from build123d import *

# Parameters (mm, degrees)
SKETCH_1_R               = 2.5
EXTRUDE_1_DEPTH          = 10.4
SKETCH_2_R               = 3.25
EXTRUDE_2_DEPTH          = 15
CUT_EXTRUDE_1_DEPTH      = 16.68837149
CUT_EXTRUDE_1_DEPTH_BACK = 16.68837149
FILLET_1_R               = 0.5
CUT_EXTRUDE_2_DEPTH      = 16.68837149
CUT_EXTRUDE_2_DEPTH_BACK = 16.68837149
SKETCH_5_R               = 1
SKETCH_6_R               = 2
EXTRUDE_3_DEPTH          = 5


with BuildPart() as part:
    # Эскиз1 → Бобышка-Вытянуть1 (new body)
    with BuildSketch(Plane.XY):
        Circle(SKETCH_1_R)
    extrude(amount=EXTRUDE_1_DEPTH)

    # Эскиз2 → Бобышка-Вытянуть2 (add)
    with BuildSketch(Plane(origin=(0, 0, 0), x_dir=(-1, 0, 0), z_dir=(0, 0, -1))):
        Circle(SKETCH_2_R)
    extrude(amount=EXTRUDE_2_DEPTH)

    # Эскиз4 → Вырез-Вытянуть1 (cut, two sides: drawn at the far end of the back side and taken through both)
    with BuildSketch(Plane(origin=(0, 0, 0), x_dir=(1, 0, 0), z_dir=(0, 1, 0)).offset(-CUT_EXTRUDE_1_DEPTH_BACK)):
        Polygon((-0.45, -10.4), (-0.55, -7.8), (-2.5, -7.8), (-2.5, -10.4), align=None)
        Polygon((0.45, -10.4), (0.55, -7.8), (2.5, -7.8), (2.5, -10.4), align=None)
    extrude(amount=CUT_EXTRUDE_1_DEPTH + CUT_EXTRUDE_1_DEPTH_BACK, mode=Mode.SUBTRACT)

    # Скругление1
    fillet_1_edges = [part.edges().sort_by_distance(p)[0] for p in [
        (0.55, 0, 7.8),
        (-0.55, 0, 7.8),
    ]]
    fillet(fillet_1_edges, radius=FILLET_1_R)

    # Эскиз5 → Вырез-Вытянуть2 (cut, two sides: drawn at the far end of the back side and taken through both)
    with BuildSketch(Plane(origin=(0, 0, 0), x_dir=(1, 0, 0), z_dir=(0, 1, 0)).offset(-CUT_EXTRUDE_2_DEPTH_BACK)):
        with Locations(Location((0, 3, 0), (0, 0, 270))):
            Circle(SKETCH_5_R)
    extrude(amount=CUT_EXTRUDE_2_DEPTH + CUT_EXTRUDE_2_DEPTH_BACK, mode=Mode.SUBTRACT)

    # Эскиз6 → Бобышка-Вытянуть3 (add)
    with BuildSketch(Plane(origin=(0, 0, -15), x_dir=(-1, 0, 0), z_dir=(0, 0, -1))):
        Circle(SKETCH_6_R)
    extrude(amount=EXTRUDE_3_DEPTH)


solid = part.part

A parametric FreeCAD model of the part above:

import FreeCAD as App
import Part
import Sketcher
Q = App.Units.Quantity


def edges_at(feature, points):
    """Names of the edges that pass closest to the given points."""
    edges = feature.Shape.Edges
    near = lambda p: min(range(len(edges)), key=lambda i: edges[i].distToShape(Part.Vertex(*p))[0])
    return sorted({f"Edge{near(p) + 1}" for p in points})


def add_polygon(sketch, points):
    """Adds a closed chain of lines whose ends are joined by coincident constraints."""
    first, n = sketch.GeometryCount, len(points)
    for a, b in zip(points, points[1:] + points[:1]):
        sketch.addGeometry(Part.LineSegment(App.Vector(*a, 0), App.Vector(*b, 0)), False)
    for i in range(n):
        sketch.addConstraint(Sketcher.Constraint("Coincident", first + i, 2, first + (i + 1) % n, 1))

doc = App.newDocument("Part")
body = doc.addObject("PartDesign::Body", "Body")

sketch1 = body.newObject("Sketcher::SketchObject", "Sketch")
sketch1.AttachmentSupport = (doc.getObject("XY_Plane"), [""])
sketch1.MapMode = "FlatFace"
sketch1.addGeometry(Part.Circle(App.Vector(0, 0, 0), App.Vector(0, 0, 1), 2.5), False)
sketch1.addConstraint(Sketcher.Constraint("Coincident", 0, 3, -1, 1))
sketch1.addConstraint(Sketcher.Constraint("Diameter", 0, Q("5 mm")))
pad1 = body.newObject("PartDesign::Pad", "Pad")
pad1.Profile = sketch1
pad1.Length = 10.4

sketch2 = body.newObject("Sketcher::SketchObject", "Sketch001")
sketch2.AttachmentSupport = (doc.getObject("XY_Plane"), [""])
sketch2.MapMode = "FlatFace"
sketch2.addGeometry(Part.Circle(App.Vector(0, 0, 0), App.Vector(0, 0, 1), 3.2), False)
sketch2.addConstraint(Sketcher.Constraint("Coincident", 0, 3, -1, 1))
sketch2.addConstraint(Sketcher.Constraint("Diameter", 0, Q("6.5 mm")))
pad2 = body.newObject("PartDesign::Pad", "Pad001")
pad2.Profile = sketch2
pad2.Length = 15
pad2.Reversed = True

sketch3 = body.newObject("Sketcher::SketchObject", "Sketch002")
sketch3.AttachmentSupport = (doc.getObject("XZ_Plane"), [""])
sketch3.MapMode = "FlatFace"
add_polygon(sketch3, [(-0.5, 10.4), (-0.6, 7.8), (-2.5, 7.8), (-2.5, 10.4)])
add_polygon(sketch3, [(0.6, 7.8), (0.5, 10.4), (2.5, 10.4), (2.5, 7.8)])
sketch3.addConstraint(Sketcher.Constraint("Horizontal", 1))
sketch3.addConstraint(Sketcher.Constraint("Vertical", 2))
sketch3.addConstraint(Sketcher.Constraint("Horizontal", 3))
sketch3.addConstraint(Sketcher.Constraint("Horizontal", 5))
sketch3.addConstraint(Sketcher.Constraint("Vertical", 6))
sketch3.addConstraint(Sketcher.Constraint("Horizontal", 7))
sketch3.addConstraint(Sketcher.Constraint("Symmetric", 3, 2, 4, 2, -2))
sketch3.addConstraint(Sketcher.Constraint("Symmetric", 1, 2, 6, 2, -2))
sketch3.addConstraint(Sketcher.Constraint("Equal", 1, 7))
sketch3.addConstraint(Sketcher.Constraint("DistanceY", 2, 1, 2, 2, Q("2.6 mm")))
sketch3.addConstraint(Sketcher.Constraint("DistanceX", 0, 2, 4, 2, Q("1 mm")))
sketch3.addConstraint(Sketcher.Constraint("DistanceX", 2, 2, 5, 2, Q("5 mm")))
sketch3.addConstraint(Sketcher.Constraint("DistanceX", 1, 2, 1, 1, Q("1.95 mm")))
sketch3.addConstraint(Sketcher.Constraint("DistanceY", -1, 1, 0, 2, Q("7.8 mm")))
pocket1 = body.newObject("PartDesign::Pocket", "Pocket")
pocket1.Profile = sketch3
pocket1.Type = "ThroughAll"
pocket1.Midplane = True
doc.recompute()

fillet = body.newObject("PartDesign::Fillet", "Fillet")
fillet.Base = (pocket1, edges_at(pocket1, [(0.55, 0, 7.8), (-0.55, 0, 7.8)]))
fillet.Radius = 0.5

sketch4 = body.newObject("Sketcher::SketchObject", "Sketch003")
sketch4.AttachmentSupport = (doc.getObject("XZ_Plane"), [""])
sketch4.MapMode = "FlatFace"
sketch4.addGeometry(Part.Circle(App.Vector(0, -3, 0), App.Vector(0, 0, 1), 1), False)
sketch4.addConstraint(Sketcher.Constraint("PointOnObject", 0, 3, -2))
sketch4.addConstraint(Sketcher.Constraint("Diameter", 0, Q("2 mm")))
sketch4.addConstraint(Sketcher.Constraint("DistanceY", 0, 3, -1, 1, Q("3 mm")))
pocket2 = body.newObject("PartDesign::Pocket", "Pocket001")
pocket2.Profile = sketch4
pocket2.Type = "ThroughAll"
pocket2.Midplane = True

sketch5 = body.newObject("Sketcher::SketchObject", "Sketch004")
sketch5.AttachmentSupport = (doc.getObject("XY_Plane"), [""])
sketch5.MapMode = "FlatFace"
sketch5.AttachmentOffset = App.Placement(App.Vector(0, 0, -15), App.Rotation())
sketch5.addGeometry(Part.Circle(App.Vector(0, 0, 0), App.Vector(0, 0, 1), 2), False)
sketch5.addConstraint(Sketcher.Constraint("Coincident", 0, 3, -1, 1))
sketch5.addConstraint(Sketcher.Constraint("Diameter", 0, Q("4 mm")))
pad3 = body.newObject("PartDesign::Pad", "Pad002")
pad3.Profile = sketch5
pad3.Length = 5
pad3.Reversed = True

doc.recompute()
